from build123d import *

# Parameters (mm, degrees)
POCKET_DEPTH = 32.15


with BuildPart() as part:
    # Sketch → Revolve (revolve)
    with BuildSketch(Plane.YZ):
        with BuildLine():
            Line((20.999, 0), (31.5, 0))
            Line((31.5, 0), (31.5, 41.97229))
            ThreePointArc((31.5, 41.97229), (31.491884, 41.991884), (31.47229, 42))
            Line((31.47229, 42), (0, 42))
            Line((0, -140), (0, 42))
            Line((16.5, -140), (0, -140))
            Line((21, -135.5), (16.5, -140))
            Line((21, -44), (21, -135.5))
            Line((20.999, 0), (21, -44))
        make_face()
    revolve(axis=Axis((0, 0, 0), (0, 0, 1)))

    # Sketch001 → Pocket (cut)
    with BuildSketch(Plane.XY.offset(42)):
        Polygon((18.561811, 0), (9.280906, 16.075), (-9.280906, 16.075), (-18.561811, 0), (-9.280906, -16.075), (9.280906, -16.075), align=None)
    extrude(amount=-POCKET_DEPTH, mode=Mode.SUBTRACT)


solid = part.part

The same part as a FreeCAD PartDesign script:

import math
import FreeCAD as App
import Part
import Sketcher

V = App.Vector
Q = App.Units.Quantity


def add_polygon(sketch, points):
    """Adds a closed chain of lines whose ends are joined by coincident constraints."""
    first, n = sketch.GeometryCount, len(points)
    for a, b in zip(points, points[1:] + points[:1]):
        sketch.addGeometry(Part.LineSegment(App.Vector(*a, 0), App.Vector(*b, 0)), False)
    for i in range(n):
        sketch.addConstraint(Sketcher.Constraint("Coincident", first + i, 2, first + (i + 1) % n, 1))

doc = App.newDocument("Part")
body = doc.addObject("PartDesign::Body", "Body")

# Sketch on YZ plane
sketch1 = body.newObject("Sketcher::SketchObject", "Sketch")
sketch1.AttachmentSupport = (doc.getObject("YZ_Plane"), [""])
sketch1.MapMode = "FlatFace"
sketch1.addGeometry(Part.LineSegment(V(20.999, 0, 0), V(31.5, 0, 0)), False)
sketch1.addGeometry(Part.LineSegment(V(31.5, 0, 0), V(31.5, 41.972, 0)), False)
sketch1.addGeometry(Part.ArcOfCircle(Part.Circle(V(31.472, 41.972, 0), V(0, 0, 1), 0.028), math.radians(0), math.radians(90)), False)
sketch1.addGeometry(Part.LineSegment(V(31.472, 42, 0), V(0, 42, 0)), False)
sketch1.addGeometry(Part.LineSegment(V(0, 42, 0), V(0, -140, 0)), False)
sketch1.addGeometry(Part.LineSegment(V(0, -140, 0), V(16.5, -140, 0)), False)
sketch1.addGeometry(Part.LineSegment(V(16.5, -140, 0), V(21, -135.5, 0)), False)
sketch1.addGeometry(Part.LineSegment(V(21, -135.5, 0), V(21, -44, 0)), False)
sketch1.addGeometry(Part.LineSegment(V(21, -44, 0), V(20.999, 0, 0)), False)
sketch1.addConstraint(Sketcher.Constraint("Coincident", 0, 2, 1, 1))
sketch1.addConstraint(Sketcher.Constraint("Coincident", 1, 2, 2, 1))
sketch1.addConstraint(Sketcher.Constraint("Coincident", 2, 2, 3, 1))
sketch1.addConstraint(Sketcher.Constraint("Coincident", 3, 2, 4, 1))
sketch1.addConstraint(Sketcher.Constraint("Coincident", 4, 2, 5, 1))
sketch1.addConstraint(Sketcher.Constraint("Coincident", 5, 2, 6, 1))
sketch1.addConstraint(Sketcher.Constraint("Coincident", 6, 2, 7, 1))
sketch1.addConstraint(Sketcher.Constraint("Coincident", 7, 2, 8, 1))
sketch1.addConstraint(Sketcher.Constraint("Coincident", 8, 2, 0, 1))
sketch1.addConstraint(Sketcher.Constraint("Horizontal", 0))
sketch1.addConstraint(Sketcher.Constraint("Vertical", 1))
sketch1.addConstraint(Sketcher.Constraint("Horizontal", 3))
sketch1.addConstraint(Sketcher.Constraint("Vertical", 4))
sketch1.addConstraint(Sketcher.Constraint("Horizontal", 5))
sketch1.addConstraint(Sketcher.Constraint("Vertical", 7))
sketch1.addConstraint(Sketcher.Constraint("PointOnObject", 0, 2, -1))
sketch1.addConstraint(Sketcher.Constraint("PointOnObject", 3, 2, -2))
sketch1.addConstraint(Sketcher.Constraint("Horizontal", 2, 3, 1, 2))
sketch1.addConstraint(Sketcher.Constraint("DistanceY", 4, 2, 4, 1, 182.0))
sketch1.addConstraint(Sketcher.Constraint("Angle", 6, Q("45 deg")))
sketch1.addConstraint(Sketcher.Constraint("Distance", 8, 44.0))
sketch1.addConstraint(Sketcher.Constraint("DistanceX", 5, 1, 5, 2, 16.5))
sketch1.addConstraint(Sketcher.Constraint("DistanceY", 7, 1, 7, 2, 91.5))
sketch1.addConstraint(Sketcher.Constraint("DistanceY", -1, 1, 2, 2, 42.0))
sketch1.addConstraint(Sketcher.Constraint("DistanceX", 5, 2, 0, 2, 15.0))
sketch1.addConstraint(Sketcher.Constraint("DistanceX", 0, 1, 0, 2, 10.501))
sketch1.addConstraint(Sketcher.Constraint("Radius", 2, 0.02771))
sketch1.addConstraint(Sketcher.Constraint("DistanceX", 3, 2, 3, 1, 31.47229))
revolution = body.newObject("PartDesign::Revolution", "Revolution")
revolution.Profile = sketch1
revolution.ReferenceAxis = (sketch1, ["V_Axis"])
revolution.Angle = 360

# Sketch on XY plane
sketch2 = body.newObject("Sketcher::SketchObject", "Sketch001")
sketch2.AttachmentSupport = (doc.getObject("XY_Plane"), [""])
sketch2.MapMode = "FlatFace"
sketch2.AttachmentOffset = App.Placement(V(0, 0, 42), App.Rotation())
add_polygon(sketch2, [(19, 0), (9, 16), (-9, 16), (-19, 0), (-9, -16), (9, -16)])  # lines 0-5
sketch2.addConstraint(Sketcher.Constraint("Horizontal", 1))
sketch2.addConstraint(Sketcher.Constraint("Horizontal", 4))
sketch2.addConstraint(Sketcher.Constraint("Symmetric", 0, 2, 3, 2, -1, 1))
sketch2.addConstraint(Sketcher.Constraint("Symmetric", 2, 2, 5, 2, -1, 1))
sketch2.addConstraint(Sketcher.Constraint("PointOnObject", 2, 2, -1))
sketch2.addConstraint(Sketcher.Constraint("Parallel", 2, 5))
sketch2.addConstraint(Sketcher.Constraint("Vertical", 1, 2, 3, 2))
sketch2.addConstraint(Sketcher.Constraint("Angle", 0, Q("119.999998 deg")))
sketch2.addConstraint(Sketcher.Constraint("DistanceY", 3, 2, 1, 2, 32.15))
sketch2.addConstraint(Sketcher.Constraint("DistanceX", 1, 2, 1, 1, 18.561812))
pocket1 = body.newObject("PartDesign::Pocket", "Pocket")
pocket1.Profile = sketch2
pocket1.Length = 32.15

doc.recompute()
